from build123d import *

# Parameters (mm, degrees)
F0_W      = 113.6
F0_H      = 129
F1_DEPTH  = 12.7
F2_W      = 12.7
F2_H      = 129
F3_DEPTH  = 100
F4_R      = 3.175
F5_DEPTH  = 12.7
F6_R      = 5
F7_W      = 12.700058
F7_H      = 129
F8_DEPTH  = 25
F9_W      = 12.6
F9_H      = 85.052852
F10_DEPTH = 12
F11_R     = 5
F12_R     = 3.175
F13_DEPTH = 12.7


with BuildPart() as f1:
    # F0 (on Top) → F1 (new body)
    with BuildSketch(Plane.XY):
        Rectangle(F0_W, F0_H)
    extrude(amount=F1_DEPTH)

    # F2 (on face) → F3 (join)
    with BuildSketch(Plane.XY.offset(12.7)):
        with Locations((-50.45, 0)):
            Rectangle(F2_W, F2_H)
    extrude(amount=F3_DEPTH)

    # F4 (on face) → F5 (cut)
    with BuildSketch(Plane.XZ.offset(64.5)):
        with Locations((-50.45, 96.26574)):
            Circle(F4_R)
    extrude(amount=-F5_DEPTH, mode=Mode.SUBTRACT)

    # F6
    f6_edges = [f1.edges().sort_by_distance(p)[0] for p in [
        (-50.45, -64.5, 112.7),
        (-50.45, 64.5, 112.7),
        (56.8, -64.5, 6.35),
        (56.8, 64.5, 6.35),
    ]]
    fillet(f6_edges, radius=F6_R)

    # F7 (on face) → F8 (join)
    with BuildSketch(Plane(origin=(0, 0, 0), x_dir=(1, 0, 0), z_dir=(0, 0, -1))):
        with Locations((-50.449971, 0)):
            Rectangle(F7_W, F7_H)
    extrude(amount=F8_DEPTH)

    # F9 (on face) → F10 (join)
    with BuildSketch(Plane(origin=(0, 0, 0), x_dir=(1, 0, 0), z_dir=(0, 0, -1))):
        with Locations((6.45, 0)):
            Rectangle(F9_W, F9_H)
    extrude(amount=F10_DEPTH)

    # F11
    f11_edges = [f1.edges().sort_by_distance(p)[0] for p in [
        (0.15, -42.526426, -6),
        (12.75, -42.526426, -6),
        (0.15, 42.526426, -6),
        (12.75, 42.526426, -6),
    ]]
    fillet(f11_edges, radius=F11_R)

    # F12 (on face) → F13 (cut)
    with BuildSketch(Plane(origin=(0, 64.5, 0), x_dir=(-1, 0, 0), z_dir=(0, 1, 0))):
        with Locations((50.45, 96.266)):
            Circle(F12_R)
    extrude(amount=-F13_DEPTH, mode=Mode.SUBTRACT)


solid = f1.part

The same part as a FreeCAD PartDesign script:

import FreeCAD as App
import Part
import Sketcher
Q = App.Units.Quantity


def edges_at(feature, points):
    """Names of the edges that pass closest to the given points."""
    edges = feature.Shape.Edges
    near = lambda p: min(range(len(edges)), key=lambda i: edges[i].distToShape(Part.Vertex(*p))[0])
    return sorted({f"Edge{near(p) + 1}" for p in points})

doc = App.newDocument("Part")
body = doc.addObject("PartDesign::Body", "Body")

# Sketch on XY plane
sketch1 = body.newObject("Sketcher::SketchObject", "Sketch")
sketch1.AttachmentSupport = (doc.getObject("XY_Plane"), [""])
sketch1.MapMode = "FlatFace"
sketch1.addGeometry(Part.LineSegment(App.Vector(-56.8, 64.5, 0), App.Vector(-56.8, -64.5, 0)), False)
sketch1.addGeometry(Part.LineSegment(App.Vector(-56.8, -64.5, 0), App.Vector(56.8, -64.5, 0)), False)
sketch1.addGeometry(Part.LineSegment(App.Vector(56.8, -64.5, 0), App.Vector(56.8, 64.5, 0)), False)
sketch1.addGeometry(Part.LineSegment(App.Vector(56.8, 64.5, 0), App.Vector(-56.8, 64.5, 0)), False)
sketch1.addConstraint(Sketcher.Constraint("Coincident", 0, 2, 1, 1))
sketch1.addConstraint(Sketcher.Constraint("Coincident", 1, 2, 2, 1))
sketch1.addConstraint(Sketcher.Constraint("Coincident", 2, 2, 3, 1))
sketch1.addConstraint(Sketcher.Constraint("Coincident", 3, 2, 0, 1))
sketch1.addConstraint(Sketcher.Constraint("Vertical", 0))
sketch1.addConstraint(Sketcher.Constraint("Horizontal", 1))
sketch1.addConstraint(Sketcher.Constraint("Vertical", 2))
sketch1.addConstraint(Sketcher.Constraint("Horizontal", 3))
sketch1.addConstraint(Sketcher.Constraint("Symmetric", 0, 2, 2, 2, -1, 1))
sketch1.addConstraint(Sketcher.Constraint("DistanceY", 0, 2, 0, 1, Q("129 mm")))
sketch1.addConstraint(Sketcher.Constraint("DistanceX", 1, 1, 1, 2, Q("113.6 mm")))
pad1 = body.newObject("PartDesign::Pad", "Pad")
pad1.Profile = sketch1
pad1.Length = 12.7

# Sketch on XY plane
sketch2 = body.newObject("Sketcher::SketchObject", "Sketch001")
sketch2.AttachmentSupport = (doc.getObject("XY_Plane"), [""])
sketch2.MapMode = "FlatFace"
sketch2.AttachmentOffset = App.Placement(App.Vector(0, 0, 12.7), App.Rotation())
sketch2.addGeometry(Part.LineSegment(App.Vector(-56.8, 64.5, 0), App.Vector(-56.8, -64.5, 0)), False)
sketch2.addGeometry(Part.LineSegment(App.Vector(-56.8, -64.5, 0), App.Vector(-44.1, -64.5, 0)), False)
sketch2.addGeometry(Part.LineSegment(App.Vector(-44.1, -64.5, 0), App.Vector(-44.1, 64.5, 0)), False)
sketch2.addGeometry(Part.LineSegment(App.Vector(-44.1, 64.5, 0), App.Vector(-56.8, 64.5, 0)), False)
sketch2.addConstraint(Sketcher.Constraint("Coincident", 0, 2, 1, 1))
sketch2.addConstraint(Sketcher.Constraint("Coincident", 1, 2, 2, 1))
sketch2.addConstraint(Sketcher.Constraint("Coincident", 2, 2, 3, 1))
sketch2.addConstraint(Sketcher.Constraint("Coincident", 3, 2, 0, 1))
sketch2.addConstraint(Sketcher.Constraint("Vertical", 0))
sketch2.addConstraint(Sketcher.Constraint("Horizontal", 1))
sketch2.addConstraint(Sketcher.Constraint("Vertical", 2))
sketch2.addConstraint(Sketcher.Constraint("Horizontal", 3))
sketch2.addConstraint(Sketcher.Constraint("DistanceY", 0, 2, 0, 1, Q("129 mm")))
sketch2.addConstraint(Sketcher.Constraint("DistanceX", 1, 1, 1, 2, Q("12.7 mm")))
sketch2.addConstraint(Sketcher.Constraint("DistanceX", 0, 2, -1, 1, Q("56.8 mm")))
sketch2.addConstraint(Sketcher.Constraint("DistanceY", 0, 2, -1, 1, Q("64.5 mm")))
pad2 = body.newObject("PartDesign::Pad", "Pad001")
pad2.Profile = sketch2
pad2.Length = 100

# Sketch on XZ plane
sketch3 = body.newObject("Sketcher::SketchObject", "Sketch002")
sketch3.AttachmentSupport = (doc.getObject("XZ_Plane"), [""])
sketch3.MapMode = "FlatFace"
sketch3.AttachmentOffset = App.Placement(App.Vector(0, 0, 64.5), App.Rotation())
sketch3.addGeometry(Part.Circle(App.Vector(-50.45, 96.26574, 0), App.Vector(0, 0, 1), 3.175), False)
sketch3.addConstraint(Sketcher.Constraint("Diameter", 0, Q("6.35 mm")))
sketch3.addConstraint(Sketcher.Constraint("DistanceX", 0, 3, -1, 1, Q("50.45 mm")))
sketch3.addConstraint(Sketcher.Constraint("DistanceY", -1, 1, 0, 3, Q("96.26574 mm")))
pocket1 = body.newObject("PartDesign::Pocket", "Pocket")
pocket1.Profile = sketch3
pocket1.Length = 12.7
doc.recompute()

fillet = body.newObject("PartDesign::Fillet", "Fillet")
fillet.Base = (pocket1, edges_at(pocket1, [
    (-50.45, -64.5, 112.7),
    (-50.45, 64.5, 112.7),
    (56.8, -64.5, 6.35),
    (56.8, 64.5, 6.35),
]))
fillet.Radius = 5

# Sketch on XY plane
sketch4 = body.newObject("Sketcher::SketchObject", "Sketch003")
sketch4.AttachmentSupport = (doc.getObject("XY_Plane"), [""])
sketch4.MapMode = "FlatFace"
sketch4.addGeometry(Part.LineSegment(App.Vector(-56.8, -64.5, 0), App.Vector(-56.8, 64.5, 0)), False)
sketch4.addGeometry(Part.LineSegment(App.Vector(-56.8, 64.5, 0), App.Vector(-44.099942, 64.5, 0)), False)
sketch4.addGeometry(Part.LineSegment(App.Vector(-44.099942, 64.5, 0), App.Vector(-44.099942, -64.5, 0)), False)
sketch4.addGeometry(Part.LineSegment(App.Vector(-44.099942, -64.5, 0), App.Vector(-56.8, -64.5, 0)), False)
sketch4.addConstraint(Sketcher.Constraint("Coincident", 0, 2, 1, 1))
sketch4.addConstraint(Sketcher.Constraint("Coincident", 1, 2, 2, 1))
sketch4.addConstraint(Sketcher.Constraint("Coincident", 2, 2, 3, 1))
sketch4.addConstraint(Sketcher.Constraint("Coincident", 3, 2, 0, 1))
sketch4.addConstraint(Sketcher.Constraint("Vertical", 0))
sketch4.addConstraint(Sketcher.Constraint("Horizontal", 1))
sketch4.addConstraint(Sketcher.Constraint("Vertical", 2))
sketch4.addConstraint(Sketcher.Constraint("Horizontal", 3))
sketch4.addConstraint(Sketcher.Constraint("DistanceY", 0, 1, 0, 2, Q("129 mm")))
sketch4.addConstraint(Sketcher.Constraint("DistanceX", 0, 2, -1, 1, Q("56.8 mm")))
sketch4.addConstraint(Sketcher.Constraint("DistanceY", -1, 1, 0, 2, Q("64.5 mm")))
sketch4.addConstraint(Sketcher.Constraint("DistanceX", 1, 1, 1, 2, Q("12.700058 mm")))
pad3 = body.newObject("PartDesign::Pad", "Pad002")
pad3.Profile = sketch4
pad3.Length = 25
pad3.Reversed = True

# Sketch on XY plane
sketch5 = body.newObject("Sketcher::SketchObject", "Sketch004")
sketch5.AttachmentSupport = (doc.getObject("XY_Plane"), [""])
sketch5.MapMode = "FlatFace"
sketch5.addGeometry(Part.LineSegment(App.Vector(0.15, -42.526426, 0), App.Vector(0.15, 42.526426, 0)), False)
sketch5.addGeometry(Part.LineSegment(App.Vector(0.15, 42.526426, 0), App.Vector(12.75, 42.526426, 0)), False)
sketch5.addGeometry(Part.LineSegment(App.Vector(12.75, 42.526426, 0), App.Vector(12.75, -42.526426, 0)), False)
sketch5.addGeometry(Part.LineSegment(App.Vector(12.75, -42.526426, 0), App.Vector(0.15, -42.526426, 0)), False)
sketch5.addConstraint(Sketcher.Constraint("Coincident", 0, 2, 1, 1))
sketch5.addConstraint(Sketcher.Constraint("Coincident", 1, 2, 2, 1))
sketch5.addConstraint(Sketcher.Constraint("Coincident", 2, 2, 3, 1))
sketch5.addConstraint(Sketcher.Constraint("Coincident", 3, 2, 0, 1))
sketch5.addConstraint(Sketcher.Constraint("Vertical", 0))
sketch5.addConstraint(Sketcher.Constraint("Horizontal", 1))
sketch5.addConstraint(Sketcher.Constraint("Vertical", 2))
sketch5.addConstraint(Sketcher.Constraint("Horizontal", 3))
sketch5.addConstraint(Sketcher.Constraint("DistanceX", 1, 1, 1, 2, Q("12.6 mm")))
sketch5.addConstraint(Sketcher.Constraint("DistanceX", -1, 1, 0, 2, Q("0.15 mm")))
sketch5.addConstraint(Sketcher.Constraint("DistanceY", 0, 1, 0, 2, Q("85.052852 mm")))
sketch5.addConstraint(Sketcher.Constraint("DistanceY", -1, 1, 0, 2, Q("42.526426 mm")))
pad4 = body.newObject("PartDesign::Pad", "Pad003")
pad4.Profile = sketch5
pad4.Length = 12
pad4.Reversed = True
doc.recompute()

fillet2 = body.newObject("PartDesign::Fillet", "Fillet001")
fillet2.Base = (pad4, edges_at(pad4, [
    (0.15, -42.526, -6),
    (12.75, -42.526, -6),
    (0.15, 42.526, -6),
    (12.75, 42.526, -6),
]))
fillet2.Radius = 5

# Sketch on XZ plane
sketch6 = body.newObject("Sketcher::SketchObject", "Sketch005")
sketch6.AttachmentSupport = (doc.getObject("XZ_Plane"), [""])
sketch6.MapMode = "FlatFace"
sketch6.AttachmentOffset = App.Placement(App.Vector(0, 0, -64.5), App.Rotation())
sketch6.addGeometry(Part.Circle(App.Vector(-50.45, 96.266, 0), App.Vector(0, 0, 1), 3.175), False)
sketch6.addConstraint(Sketcher.Constraint("Diameter", 0, Q("6.35 mm")))
sketch6.addConstraint(Sketcher.Constraint("DistanceX", 0, 3, -1, 1, Q("50.45 mm")))
sketch6.addConstraint(Sketcher.Constraint("DistanceY", -1, 1, 0, 3, Q("96.266 mm")))
pocket2 = body.newObject("PartDesign::Pocket", "Pocket001")
pocket2.Profile = sketch6
pocket2.Length = 12.7
pocket2.Reversed = True

doc.recompute()
